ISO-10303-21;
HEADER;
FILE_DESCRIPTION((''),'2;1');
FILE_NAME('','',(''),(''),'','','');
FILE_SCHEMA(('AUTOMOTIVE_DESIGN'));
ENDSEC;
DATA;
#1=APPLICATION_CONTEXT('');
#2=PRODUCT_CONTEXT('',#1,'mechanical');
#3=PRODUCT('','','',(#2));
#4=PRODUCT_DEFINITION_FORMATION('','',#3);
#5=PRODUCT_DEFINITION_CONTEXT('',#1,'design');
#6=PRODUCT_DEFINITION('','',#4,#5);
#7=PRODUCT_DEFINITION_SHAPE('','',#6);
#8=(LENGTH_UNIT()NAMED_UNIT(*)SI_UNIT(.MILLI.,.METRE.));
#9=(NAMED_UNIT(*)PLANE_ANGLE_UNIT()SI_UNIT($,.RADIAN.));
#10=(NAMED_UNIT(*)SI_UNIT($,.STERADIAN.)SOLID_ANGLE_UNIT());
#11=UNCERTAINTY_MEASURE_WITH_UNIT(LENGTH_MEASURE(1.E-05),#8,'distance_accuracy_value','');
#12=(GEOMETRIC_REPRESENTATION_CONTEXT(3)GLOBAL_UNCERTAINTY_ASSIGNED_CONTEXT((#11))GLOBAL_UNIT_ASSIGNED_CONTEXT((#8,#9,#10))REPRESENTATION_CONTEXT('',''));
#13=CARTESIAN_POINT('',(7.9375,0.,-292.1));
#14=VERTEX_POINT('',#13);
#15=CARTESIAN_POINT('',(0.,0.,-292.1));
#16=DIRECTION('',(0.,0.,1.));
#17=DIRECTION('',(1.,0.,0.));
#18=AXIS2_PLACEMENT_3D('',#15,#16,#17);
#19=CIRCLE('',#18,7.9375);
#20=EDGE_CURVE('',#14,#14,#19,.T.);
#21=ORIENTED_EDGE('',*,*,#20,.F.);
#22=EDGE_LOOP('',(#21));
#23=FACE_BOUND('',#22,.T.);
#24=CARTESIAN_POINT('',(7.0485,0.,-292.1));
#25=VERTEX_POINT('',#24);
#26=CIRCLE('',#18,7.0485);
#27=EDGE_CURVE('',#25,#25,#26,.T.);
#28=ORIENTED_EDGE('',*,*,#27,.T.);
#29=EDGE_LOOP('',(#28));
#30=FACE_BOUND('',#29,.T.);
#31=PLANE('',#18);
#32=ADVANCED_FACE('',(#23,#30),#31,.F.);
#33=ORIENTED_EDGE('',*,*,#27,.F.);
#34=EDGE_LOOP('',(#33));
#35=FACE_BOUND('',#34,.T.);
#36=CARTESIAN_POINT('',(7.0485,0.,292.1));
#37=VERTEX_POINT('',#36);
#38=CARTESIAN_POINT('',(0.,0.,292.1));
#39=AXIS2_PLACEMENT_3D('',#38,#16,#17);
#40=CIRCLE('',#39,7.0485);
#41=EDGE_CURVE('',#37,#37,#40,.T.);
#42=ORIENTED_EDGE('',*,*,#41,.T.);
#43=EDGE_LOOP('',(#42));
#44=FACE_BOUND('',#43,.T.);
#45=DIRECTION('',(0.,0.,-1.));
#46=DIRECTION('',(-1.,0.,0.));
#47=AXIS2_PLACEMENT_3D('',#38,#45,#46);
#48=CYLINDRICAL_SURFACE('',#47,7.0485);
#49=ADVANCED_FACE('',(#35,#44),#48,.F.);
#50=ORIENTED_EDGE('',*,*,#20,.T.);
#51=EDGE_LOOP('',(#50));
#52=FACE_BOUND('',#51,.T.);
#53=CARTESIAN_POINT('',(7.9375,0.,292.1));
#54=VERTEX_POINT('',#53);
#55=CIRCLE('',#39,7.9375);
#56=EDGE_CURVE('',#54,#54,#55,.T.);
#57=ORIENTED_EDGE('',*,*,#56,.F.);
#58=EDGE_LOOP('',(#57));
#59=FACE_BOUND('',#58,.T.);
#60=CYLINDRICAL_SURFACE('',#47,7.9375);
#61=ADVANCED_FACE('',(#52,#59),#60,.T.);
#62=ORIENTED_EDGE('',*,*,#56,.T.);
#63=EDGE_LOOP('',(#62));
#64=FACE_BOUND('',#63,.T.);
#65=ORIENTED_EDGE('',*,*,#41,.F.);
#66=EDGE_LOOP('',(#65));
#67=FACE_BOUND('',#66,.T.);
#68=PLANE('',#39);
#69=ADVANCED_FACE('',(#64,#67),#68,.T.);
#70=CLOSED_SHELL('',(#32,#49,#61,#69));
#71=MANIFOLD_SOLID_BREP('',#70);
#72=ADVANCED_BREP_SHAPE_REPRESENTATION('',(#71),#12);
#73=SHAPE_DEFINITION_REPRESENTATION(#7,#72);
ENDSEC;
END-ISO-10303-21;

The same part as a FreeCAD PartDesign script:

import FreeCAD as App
import Part
import Sketcher

V = App.Vector
Q = App.Units.Quantity

doc = App.newDocument("Part")
params = doc.addObject("Spreadsheet::Sheet", "Params")
for row, (alias, value) in enumerate([
    ("sketch1_diameter", "0.625 in"),
    ("sketch1_diameter2", "0.555 in"),
    ("pad1_length", "23 in"),
], start=1):
    params.set(f"A{row}", alias)
    params.set(f"B{row}", "=" + value)
    params.setAlias(f"B{row}", alias)

body = doc.addObject("PartDesign::Body", "Body")

# Sketch on XY plane
sketch1 = doc.addObject("Sketcher::SketchObject", "Sketch")
body.addObject(sketch1)
sketch1.AttachmentSupport = (doc.XY_Plane, [""])
sketch1.MapMode = "FlatFace"
sketch1.addGeometry([
    Part.Circle(V(0, 0, 0), V(0, 0, 1), 8),
    Part.Circle(V(0, 0, 0), V(0, 0, 1), 7),
], False)
sketch1.addConstraint([
    Sketcher.Constraint("Coincident", 0, 3, -1, 1),
    Sketcher.Constraint("Coincident", 1, 3, -1, 1),
    Sketcher.Constraint("Diameter", 0, Q("0.625 in")),
    Sketcher.Constraint("Diameter", 1, Q("0.555 in")),
])
sketch1.setExpression("Constraints[2]", "Params.sketch1_diameter")
sketch1.setExpression("Constraints[3]", "Params.sketch1_diameter2")
pad1 = doc.addObject("PartDesign::Pad", "Pad")
body.addObject(pad1)
pad1.Profile = sketch1
pad1.setExpression("Length", "Params.pad1_length")
pad1.Midplane = True

doc.recompute()
